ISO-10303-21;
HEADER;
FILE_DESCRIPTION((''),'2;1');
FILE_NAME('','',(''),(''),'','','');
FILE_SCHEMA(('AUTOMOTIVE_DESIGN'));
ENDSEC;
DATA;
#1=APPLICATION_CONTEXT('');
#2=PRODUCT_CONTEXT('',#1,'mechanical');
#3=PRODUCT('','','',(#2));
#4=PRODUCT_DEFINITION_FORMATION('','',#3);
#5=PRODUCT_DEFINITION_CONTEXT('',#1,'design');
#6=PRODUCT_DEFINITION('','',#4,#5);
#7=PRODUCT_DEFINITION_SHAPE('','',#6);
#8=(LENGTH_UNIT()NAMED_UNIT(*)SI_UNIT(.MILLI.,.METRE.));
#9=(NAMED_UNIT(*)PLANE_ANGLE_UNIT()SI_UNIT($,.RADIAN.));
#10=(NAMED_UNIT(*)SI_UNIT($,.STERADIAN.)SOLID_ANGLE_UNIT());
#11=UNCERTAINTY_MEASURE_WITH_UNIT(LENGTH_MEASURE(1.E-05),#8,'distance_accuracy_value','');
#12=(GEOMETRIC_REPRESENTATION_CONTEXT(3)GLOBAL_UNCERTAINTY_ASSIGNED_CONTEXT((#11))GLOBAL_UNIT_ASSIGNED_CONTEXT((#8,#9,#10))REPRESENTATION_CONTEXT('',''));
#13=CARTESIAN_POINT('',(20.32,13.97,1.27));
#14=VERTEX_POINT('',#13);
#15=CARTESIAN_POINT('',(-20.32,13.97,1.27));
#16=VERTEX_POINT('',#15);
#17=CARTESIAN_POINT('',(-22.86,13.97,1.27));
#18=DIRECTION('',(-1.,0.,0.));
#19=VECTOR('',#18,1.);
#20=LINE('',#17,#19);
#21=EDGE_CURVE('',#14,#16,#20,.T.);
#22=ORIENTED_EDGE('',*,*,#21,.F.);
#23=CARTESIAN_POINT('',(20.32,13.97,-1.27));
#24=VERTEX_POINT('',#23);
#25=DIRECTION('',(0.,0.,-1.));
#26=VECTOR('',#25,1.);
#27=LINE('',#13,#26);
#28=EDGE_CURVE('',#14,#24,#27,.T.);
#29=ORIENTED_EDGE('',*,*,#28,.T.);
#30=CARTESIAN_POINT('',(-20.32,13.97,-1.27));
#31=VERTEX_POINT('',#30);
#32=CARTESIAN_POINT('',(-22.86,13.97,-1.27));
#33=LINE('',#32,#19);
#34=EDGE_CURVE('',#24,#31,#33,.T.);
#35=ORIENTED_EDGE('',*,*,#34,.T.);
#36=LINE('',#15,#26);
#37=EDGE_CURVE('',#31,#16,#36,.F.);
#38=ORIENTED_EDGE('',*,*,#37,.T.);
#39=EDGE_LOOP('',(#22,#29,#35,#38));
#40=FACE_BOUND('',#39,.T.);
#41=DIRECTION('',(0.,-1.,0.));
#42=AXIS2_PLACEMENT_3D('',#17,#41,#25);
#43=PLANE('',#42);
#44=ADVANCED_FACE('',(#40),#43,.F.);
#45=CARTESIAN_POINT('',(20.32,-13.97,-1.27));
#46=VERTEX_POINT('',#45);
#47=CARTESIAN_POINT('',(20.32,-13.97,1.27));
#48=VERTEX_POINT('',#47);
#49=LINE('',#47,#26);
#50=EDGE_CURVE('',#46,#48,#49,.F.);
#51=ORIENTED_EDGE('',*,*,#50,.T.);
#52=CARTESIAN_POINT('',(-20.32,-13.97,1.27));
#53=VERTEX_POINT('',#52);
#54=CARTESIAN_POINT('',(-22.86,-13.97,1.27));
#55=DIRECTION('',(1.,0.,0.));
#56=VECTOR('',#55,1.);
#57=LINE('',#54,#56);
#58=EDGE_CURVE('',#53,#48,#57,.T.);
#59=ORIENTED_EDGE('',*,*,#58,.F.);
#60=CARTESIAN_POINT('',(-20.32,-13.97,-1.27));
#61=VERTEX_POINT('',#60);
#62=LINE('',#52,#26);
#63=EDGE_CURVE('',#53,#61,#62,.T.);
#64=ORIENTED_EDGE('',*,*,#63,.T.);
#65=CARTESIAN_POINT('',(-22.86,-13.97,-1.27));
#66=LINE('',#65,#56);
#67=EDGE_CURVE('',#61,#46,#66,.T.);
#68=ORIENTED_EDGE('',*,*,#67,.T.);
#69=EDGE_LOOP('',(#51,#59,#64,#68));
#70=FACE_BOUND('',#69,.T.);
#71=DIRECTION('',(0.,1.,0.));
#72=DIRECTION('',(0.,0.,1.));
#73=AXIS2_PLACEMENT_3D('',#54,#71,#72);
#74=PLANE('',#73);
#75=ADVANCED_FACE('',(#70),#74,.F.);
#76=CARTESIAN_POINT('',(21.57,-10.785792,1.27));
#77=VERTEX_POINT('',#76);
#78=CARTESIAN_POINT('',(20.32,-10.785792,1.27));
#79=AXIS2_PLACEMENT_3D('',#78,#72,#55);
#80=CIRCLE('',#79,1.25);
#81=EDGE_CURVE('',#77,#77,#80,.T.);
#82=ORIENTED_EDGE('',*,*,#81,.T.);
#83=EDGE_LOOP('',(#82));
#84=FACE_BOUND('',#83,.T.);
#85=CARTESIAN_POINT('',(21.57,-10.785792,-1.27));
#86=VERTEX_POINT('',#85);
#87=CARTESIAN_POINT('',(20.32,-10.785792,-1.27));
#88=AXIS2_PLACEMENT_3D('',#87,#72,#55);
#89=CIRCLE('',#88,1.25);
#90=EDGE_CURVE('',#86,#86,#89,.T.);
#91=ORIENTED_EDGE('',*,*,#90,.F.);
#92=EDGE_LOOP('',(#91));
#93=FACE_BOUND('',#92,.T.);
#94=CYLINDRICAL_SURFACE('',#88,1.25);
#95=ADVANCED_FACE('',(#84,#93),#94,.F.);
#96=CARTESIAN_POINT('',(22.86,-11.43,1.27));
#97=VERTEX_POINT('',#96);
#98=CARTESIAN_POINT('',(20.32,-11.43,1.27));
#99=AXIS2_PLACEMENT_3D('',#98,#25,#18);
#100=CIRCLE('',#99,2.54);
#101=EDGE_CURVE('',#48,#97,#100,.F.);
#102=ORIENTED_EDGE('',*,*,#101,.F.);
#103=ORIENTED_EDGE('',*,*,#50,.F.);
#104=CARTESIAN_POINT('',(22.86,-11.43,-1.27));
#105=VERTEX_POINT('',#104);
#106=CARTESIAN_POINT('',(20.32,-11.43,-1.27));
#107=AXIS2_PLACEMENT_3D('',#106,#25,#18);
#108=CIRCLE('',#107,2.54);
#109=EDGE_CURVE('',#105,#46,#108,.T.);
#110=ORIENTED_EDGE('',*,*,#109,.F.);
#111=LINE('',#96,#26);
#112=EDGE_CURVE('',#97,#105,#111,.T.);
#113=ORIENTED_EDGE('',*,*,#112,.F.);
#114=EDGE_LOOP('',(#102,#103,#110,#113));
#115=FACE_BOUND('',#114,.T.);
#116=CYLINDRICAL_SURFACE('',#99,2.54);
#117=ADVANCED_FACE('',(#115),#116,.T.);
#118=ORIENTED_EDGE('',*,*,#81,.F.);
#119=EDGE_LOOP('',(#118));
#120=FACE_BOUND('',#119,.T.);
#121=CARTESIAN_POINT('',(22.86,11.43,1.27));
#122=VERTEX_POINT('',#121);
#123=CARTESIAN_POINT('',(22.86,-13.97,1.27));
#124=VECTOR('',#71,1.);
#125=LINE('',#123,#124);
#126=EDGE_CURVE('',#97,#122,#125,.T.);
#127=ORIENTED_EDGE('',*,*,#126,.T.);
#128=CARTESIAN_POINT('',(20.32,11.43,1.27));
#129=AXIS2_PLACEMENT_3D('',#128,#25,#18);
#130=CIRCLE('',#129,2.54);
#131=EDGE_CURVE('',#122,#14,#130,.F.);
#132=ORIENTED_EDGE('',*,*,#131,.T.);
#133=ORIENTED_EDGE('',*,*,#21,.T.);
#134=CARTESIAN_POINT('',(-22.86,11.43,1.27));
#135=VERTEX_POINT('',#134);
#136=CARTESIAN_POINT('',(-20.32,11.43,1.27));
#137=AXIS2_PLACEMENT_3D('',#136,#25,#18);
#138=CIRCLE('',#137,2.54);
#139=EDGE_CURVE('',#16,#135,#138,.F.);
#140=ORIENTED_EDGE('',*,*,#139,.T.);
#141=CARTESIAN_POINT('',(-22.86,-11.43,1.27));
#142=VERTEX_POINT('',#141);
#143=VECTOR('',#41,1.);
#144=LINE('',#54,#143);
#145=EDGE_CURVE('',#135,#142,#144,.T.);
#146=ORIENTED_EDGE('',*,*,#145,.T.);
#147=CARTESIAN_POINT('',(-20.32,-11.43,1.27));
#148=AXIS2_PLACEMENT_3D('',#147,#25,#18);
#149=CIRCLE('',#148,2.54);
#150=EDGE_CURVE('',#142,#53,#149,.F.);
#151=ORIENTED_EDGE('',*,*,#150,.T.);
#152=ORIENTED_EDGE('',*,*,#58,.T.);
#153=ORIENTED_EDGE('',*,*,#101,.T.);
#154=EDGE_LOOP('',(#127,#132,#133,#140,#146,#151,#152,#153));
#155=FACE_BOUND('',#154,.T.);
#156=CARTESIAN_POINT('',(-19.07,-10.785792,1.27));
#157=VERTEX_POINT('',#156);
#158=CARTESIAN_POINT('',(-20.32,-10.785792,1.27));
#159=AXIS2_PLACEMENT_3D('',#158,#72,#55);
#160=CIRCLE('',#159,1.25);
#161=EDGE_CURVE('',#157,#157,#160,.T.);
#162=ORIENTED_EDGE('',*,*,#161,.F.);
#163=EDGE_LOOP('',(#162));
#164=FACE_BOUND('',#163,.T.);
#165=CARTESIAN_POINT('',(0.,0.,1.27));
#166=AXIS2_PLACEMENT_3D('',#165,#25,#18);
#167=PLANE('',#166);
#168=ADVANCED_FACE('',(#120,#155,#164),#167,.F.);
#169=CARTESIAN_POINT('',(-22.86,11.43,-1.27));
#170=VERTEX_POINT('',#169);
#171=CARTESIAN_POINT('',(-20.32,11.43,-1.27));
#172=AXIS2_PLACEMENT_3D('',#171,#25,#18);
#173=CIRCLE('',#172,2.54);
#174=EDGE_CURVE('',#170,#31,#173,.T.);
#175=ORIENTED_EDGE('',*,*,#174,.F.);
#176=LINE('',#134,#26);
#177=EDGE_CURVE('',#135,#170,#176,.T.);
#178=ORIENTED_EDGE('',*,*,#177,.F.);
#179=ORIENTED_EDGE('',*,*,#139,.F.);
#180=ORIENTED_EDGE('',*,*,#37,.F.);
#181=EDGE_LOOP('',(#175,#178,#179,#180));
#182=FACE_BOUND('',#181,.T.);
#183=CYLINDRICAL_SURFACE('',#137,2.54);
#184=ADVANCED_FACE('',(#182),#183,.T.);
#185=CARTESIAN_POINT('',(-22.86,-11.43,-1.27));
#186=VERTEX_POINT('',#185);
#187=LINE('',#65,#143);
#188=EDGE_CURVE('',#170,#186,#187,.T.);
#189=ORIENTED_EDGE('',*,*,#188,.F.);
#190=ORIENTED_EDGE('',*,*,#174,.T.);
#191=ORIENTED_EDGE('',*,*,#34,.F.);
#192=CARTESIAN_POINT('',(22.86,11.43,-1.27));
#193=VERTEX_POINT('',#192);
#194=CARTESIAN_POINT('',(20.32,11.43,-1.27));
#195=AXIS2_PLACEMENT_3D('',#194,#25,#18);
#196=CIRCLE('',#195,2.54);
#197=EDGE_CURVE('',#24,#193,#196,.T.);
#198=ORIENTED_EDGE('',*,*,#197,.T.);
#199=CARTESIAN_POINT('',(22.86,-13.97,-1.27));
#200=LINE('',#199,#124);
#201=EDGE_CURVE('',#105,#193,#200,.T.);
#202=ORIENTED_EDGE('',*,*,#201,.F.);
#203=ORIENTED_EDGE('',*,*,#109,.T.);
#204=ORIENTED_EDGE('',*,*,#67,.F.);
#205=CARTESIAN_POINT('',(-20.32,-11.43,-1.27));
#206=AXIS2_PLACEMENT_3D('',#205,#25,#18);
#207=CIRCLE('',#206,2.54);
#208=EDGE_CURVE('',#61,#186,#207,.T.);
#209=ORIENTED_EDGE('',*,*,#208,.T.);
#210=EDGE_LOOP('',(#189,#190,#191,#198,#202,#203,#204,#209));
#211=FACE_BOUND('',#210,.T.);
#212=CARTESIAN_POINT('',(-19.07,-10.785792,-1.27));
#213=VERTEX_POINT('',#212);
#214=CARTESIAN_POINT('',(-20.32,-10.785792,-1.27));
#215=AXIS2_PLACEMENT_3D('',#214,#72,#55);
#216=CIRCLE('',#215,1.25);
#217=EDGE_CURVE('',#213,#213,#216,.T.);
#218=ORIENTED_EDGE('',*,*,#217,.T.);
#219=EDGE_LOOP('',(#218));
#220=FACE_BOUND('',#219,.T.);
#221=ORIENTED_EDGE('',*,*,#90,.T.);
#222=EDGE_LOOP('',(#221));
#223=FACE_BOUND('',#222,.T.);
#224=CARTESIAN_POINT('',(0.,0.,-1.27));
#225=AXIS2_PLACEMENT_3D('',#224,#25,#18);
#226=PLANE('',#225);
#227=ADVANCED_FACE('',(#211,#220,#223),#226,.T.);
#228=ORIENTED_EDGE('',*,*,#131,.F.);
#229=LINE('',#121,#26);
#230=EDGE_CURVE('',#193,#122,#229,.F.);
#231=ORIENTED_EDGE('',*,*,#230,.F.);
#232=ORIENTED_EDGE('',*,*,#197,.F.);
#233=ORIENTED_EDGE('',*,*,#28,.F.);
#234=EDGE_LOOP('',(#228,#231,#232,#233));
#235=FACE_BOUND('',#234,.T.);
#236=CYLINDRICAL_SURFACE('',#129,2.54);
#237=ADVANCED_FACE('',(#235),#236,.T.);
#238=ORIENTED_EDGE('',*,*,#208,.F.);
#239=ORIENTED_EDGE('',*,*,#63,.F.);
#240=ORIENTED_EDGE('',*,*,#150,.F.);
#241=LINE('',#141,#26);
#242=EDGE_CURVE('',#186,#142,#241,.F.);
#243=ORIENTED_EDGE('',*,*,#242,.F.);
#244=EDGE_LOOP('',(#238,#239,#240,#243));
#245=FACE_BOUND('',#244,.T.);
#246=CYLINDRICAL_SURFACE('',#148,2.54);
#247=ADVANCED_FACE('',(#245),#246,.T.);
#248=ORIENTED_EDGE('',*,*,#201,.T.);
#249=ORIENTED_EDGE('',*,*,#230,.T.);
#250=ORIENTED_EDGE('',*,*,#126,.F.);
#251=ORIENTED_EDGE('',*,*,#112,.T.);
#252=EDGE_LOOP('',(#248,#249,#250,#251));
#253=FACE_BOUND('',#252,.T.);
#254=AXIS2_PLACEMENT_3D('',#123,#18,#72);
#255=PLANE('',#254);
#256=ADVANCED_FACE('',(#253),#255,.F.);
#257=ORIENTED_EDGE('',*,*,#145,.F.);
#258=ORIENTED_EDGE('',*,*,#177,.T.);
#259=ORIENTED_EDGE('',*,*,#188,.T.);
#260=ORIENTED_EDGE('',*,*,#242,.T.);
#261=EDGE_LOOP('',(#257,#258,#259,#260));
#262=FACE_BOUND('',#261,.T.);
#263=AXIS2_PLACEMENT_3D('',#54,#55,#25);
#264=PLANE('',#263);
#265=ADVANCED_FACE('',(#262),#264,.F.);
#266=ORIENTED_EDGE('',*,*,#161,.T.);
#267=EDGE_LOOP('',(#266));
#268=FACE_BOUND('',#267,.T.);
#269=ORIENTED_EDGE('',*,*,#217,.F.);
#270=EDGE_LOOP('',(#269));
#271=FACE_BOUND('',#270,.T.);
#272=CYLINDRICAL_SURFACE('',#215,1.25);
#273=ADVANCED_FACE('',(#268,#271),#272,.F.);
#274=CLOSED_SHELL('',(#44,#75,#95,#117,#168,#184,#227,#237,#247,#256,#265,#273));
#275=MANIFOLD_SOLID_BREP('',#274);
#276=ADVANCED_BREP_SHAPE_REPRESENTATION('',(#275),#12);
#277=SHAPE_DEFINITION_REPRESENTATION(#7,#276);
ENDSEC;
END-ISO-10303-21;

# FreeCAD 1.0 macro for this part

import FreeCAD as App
import Part
import Sketcher
Q = App.Units.Quantity


def edges_at(feature, points):
    """Names of the edges that pass closest to the given points."""
    edges = feature.Shape.Edges
    near = lambda p: min(range(len(edges)), key=lambda i: edges[i].distToShape(Part.Vertex(*p))[0])
    return sorted({f"Edge{near(p) + 1}" for p in points})

doc = App.newDocument("Part")
body = doc.addObject("PartDesign::Body", "Body")

sketch1 = doc.addObject("Sketcher::SketchObject", "Sketch")
body.addObject(sketch1)
sketch1.AttachmentSupport = (doc.XY_Plane, [""])
sketch1.MapMode = "FlatFace"
sketch1.addGeometry(Part.LineSegment(App.Vector(-23, 14, 0), App.Vector(-23, -14, 0)), False)
sketch1.addGeometry(Part.LineSegment(App.Vector(-23, -14, 0), App.Vector(23, -14, 0)), False)
sketch1.addGeometry(Part.LineSegment(App.Vector(23, -14, 0), App.Vector(23, 14, 0)), False)
sketch1.addGeometry(Part.LineSegment(App.Vector(23, 14, 0), App.Vector(-23, 14, 0)), False)
sketch1.addConstraint(Sketcher.Constraint("Coincident", 0, 2, 1, 1))
sketch1.addConstraint(Sketcher.Constraint("Coincident", 1, 2, 2, 1))
sketch1.addConstraint(Sketcher.Constraint("Coincident", 2, 2, 3, 1))
sketch1.addConstraint(Sketcher.Constraint("Coincident", 3, 2, 0, 1))
sketch1.addConstraint(Sketcher.Constraint("Vertical", 0))
sketch1.addConstraint(Sketcher.Constraint("Horizontal", 1))
sketch1.addConstraint(Sketcher.Constraint("Vertical", 2))
sketch1.addConstraint(Sketcher.Constraint("Horizontal", 3))
sketch1.addConstraint(Sketcher.Constraint("Symmetric", 0, 2, 2, 2, -1, 1))
sketch1.addConstraint(Sketcher.Constraint("DistanceX", 1, 1, 1, 2, Q("1.8 in")))
sketch1.addConstraint(Sketcher.Constraint("DistanceY", 0, 2, 0, 1, Q("1.1 in")))
pad1 = doc.addObject("PartDesign::Pad", "Pad")
body.addObject(pad1)
pad1.Profile = sketch1
pad1.Length = Q("0.1 in")
pad1.Midplane = True
doc.recompute()

fillet = doc.addObject("PartDesign::Fillet", "Fillet")
body.addObject(fillet)
fillet.Base = (pad1, edges_at(pad1, [
    (22.86, -13.97, 0),
    (-22.86, -13.97, 0),
    (-22.86, 13.97, 0),
    (22.86, 13.97, 0),
]))
fillet.Radius = Q("0.1 in")

sketch2 = doc.addObject("Sketcher::SketchObject", "Sketch001")
body.addObject(sketch2)
sketch2.AttachmentSupport = (doc.XY_Plane, [""])
sketch2.MapMode = "FlatFace"
sketch2.AttachmentOffset = App.Placement(App.Vector(0, 0, 0.05 * 25.4), App.Rotation())
sketch2.addGeometry(Part.Circle(App.Vector(-20.3, -10.8, 0), App.Vector(0, 0, 1), 1.2), False)
sketch2.addGeometry(Part.Circle(App.Vector(20.3, -10.8, 0), App.Vector(0, 0, 1), 1.2), False)
sketch2.addConstraint(Sketcher.Constraint("Equal", 0, 1))
sketch2.addConstraint(Sketcher.Constraint("Symmetric", 0, 3, 1, 3, -2))
sketch2.addConstraint(Sketcher.Constraint("DistanceX", 0, 3, -1, 1, Q("0.8 in")))
sketch2.addConstraint(Sketcher.Constraint("Diameter", 0, Q("2.5 mm")))
sketch2.addConstraint(Sketcher.Constraint("DistanceY", 0, 3, -1, 1, Q("10.785792 mm")))
pocket1 = doc.addObject("PartDesign::Pocket", "Pocket")
body.addObject(pocket1)
pocket1.Profile = sketch2
pocket1.Length = Q("0.1 in")

doc.recompute()
